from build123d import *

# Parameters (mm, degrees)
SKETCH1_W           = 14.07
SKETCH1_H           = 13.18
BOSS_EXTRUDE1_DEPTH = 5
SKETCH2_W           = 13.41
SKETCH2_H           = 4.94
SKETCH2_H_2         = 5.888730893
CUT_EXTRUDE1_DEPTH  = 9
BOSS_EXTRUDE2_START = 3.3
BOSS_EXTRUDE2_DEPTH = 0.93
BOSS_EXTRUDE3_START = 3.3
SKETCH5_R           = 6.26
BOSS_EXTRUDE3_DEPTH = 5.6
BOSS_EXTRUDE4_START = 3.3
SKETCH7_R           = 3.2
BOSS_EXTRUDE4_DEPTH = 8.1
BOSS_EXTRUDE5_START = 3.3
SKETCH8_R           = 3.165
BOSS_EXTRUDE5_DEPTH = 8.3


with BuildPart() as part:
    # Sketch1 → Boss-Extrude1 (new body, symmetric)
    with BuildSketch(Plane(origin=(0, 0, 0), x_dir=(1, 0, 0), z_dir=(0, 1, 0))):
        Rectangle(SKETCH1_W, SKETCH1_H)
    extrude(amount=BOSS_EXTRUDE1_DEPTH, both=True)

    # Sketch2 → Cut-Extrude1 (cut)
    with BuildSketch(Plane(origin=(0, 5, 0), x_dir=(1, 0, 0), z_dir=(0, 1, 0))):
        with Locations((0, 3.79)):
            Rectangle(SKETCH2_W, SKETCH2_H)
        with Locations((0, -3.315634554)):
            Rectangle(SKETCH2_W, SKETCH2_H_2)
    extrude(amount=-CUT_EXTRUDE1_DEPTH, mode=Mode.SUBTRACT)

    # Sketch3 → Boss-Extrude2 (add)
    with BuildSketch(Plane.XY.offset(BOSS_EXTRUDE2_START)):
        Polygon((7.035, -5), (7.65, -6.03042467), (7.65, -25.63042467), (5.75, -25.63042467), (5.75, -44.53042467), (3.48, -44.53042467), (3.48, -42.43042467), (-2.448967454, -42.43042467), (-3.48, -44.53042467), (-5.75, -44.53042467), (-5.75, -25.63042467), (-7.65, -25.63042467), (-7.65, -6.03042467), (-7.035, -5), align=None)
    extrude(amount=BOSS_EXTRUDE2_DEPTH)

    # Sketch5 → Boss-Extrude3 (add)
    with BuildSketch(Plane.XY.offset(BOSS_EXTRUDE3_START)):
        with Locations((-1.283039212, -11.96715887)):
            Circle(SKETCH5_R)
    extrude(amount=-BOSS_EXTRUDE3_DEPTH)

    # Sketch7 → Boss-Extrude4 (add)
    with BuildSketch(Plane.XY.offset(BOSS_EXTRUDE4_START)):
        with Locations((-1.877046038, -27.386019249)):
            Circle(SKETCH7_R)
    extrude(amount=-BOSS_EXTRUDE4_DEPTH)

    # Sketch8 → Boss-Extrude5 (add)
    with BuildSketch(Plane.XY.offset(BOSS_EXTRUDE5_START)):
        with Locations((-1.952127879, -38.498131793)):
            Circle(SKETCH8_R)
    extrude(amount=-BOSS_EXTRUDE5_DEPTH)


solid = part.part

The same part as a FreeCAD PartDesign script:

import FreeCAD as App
import Part
import Sketcher
from FreeCAD import Vector
Q = App.Units.Quantity

doc = App.newDocument("Part")
params = doc.addObject("Spreadsheet::Sheet", "Params")
for row, (alias, value) in enumerate([
    ("sketch1_width", "14.07 mm"),
    ("sketch1_height", "13.18 mm"),
    ("pad1_length", "10 mm"),
    ("sketch2_width", "13.41 mm"),
    ("sketch2_height", "4.94 mm"),
    ("pocket1_length", "9 mm"),
    ("sketch3_width", "1.9 mm"),
    ("sketch3_height", "19.6 mm"),
    ("sketch3_height2", "18.9 mm"),
    ("sketch3_height3", "2.1 mm"),
    ("sketch3_length", "1.2 mm"),
    ("pad2_length", "0.93 mm"),
    ("sketch4_diameter", "12.52 mm"),
    ("pad3_length", "5.6 mm"),
    ("sketch5_diameter", "6.4 mm"),
    ("pad4_length", "8.1 mm"),
    ("sketch6_diameter", "6.33 mm"),
    ("pad5_length", "8.3 mm"),
], start=1):
    params.set(f"A{row}", alias)
    params.set(f"B{row}", "=" + value)
    params.setAlias(f"B{row}", alias)

body = doc.addObject("PartDesign::Body", "Body")

sketch1 = doc.addObject("Sketcher::SketchObject", "Sketch")
body.addObject(sketch1)
sketch1.AttachmentSupport = (doc.XZ_Plane, [""])
sketch1.MapMode = "FlatFace"
sketch1.addGeometry([
    Part.LineSegment(Vector(-7, -7, 0), Vector(-7, 7, 0)),
    Part.LineSegment(Vector(-7, 7, 0), Vector(7, 7, 0)),
    Part.LineSegment(Vector(7, 7, 0), Vector(7, -7, 0)),
    Part.LineSegment(Vector(7, -7, 0), Vector(-7, -7, 0)),
], False)
sketch1.addConstraint([
    Sketcher.Constraint("Coincident", 0, 2, 1, 1),
    Sketcher.Constraint("Coincident", 1, 2, 2, 1),
    Sketcher.Constraint("Coincident", 2, 2, 3, 1),
    Sketcher.Constraint("Coincident", 3, 2, 0, 1),
    Sketcher.Constraint("Vertical", 0),
    Sketcher.Constraint("Horizontal", 1),
    Sketcher.Constraint("Vertical", 2),
    Sketcher.Constraint("Horizontal", 3),
    Sketcher.Constraint("Symmetric", 0, 2, 2, 2, -1, 1),
    Sketcher.Constraint("DistanceX", 1, 1, 1, 2, Q("14.07 mm")),
    Sketcher.Constraint("DistanceY", 0, 1, 0, 2, Q("13.18 mm")),
])
sketch1.setExpression("Constraints[9]", "Params.sketch1_width")
sketch1.setExpression("Constraints[10]", "Params.sketch1_height")
pad1 = doc.addObject("PartDesign::Pad", "Pad")
body.addObject(pad1)
pad1.Profile = sketch1
pad1.setExpression("Length", "Params.pad1_length")
pad1.Midplane = True

sketch2 = doc.addObject("Sketcher::SketchObject", "Sketch001")
body.addObject(sketch2)
sketch2.AttachmentSupport = (doc.XZ_Plane, [""])
sketch2.MapMode = "FlatFace"
sketch2.AttachmentOffset = App.Placement(Vector(0, 0, -5), App.Rotation())
sketch2.addGeometry([
    Part.LineSegment(Vector(-6.7, -6.3, 0), Vector(-6.7, -1.3, 0)),
    Part.LineSegment(Vector(-6.7, -1.3, 0), Vector(6.7, -1.3, 0)),
    Part.LineSegment(Vector(6.7, -1.3, 0), Vector(6.7, -6.3, 0)),
    Part.LineSegment(Vector(6.7, -6.3, 0), Vector(-6.7, -6.3, 0)),
    Part.LineSegment(Vector(-6.7, 0.4, 0), Vector(-6.7, 6.3, 0)),
    Part.LineSegment(Vector(-6.7, 6.3, 0), Vector(6.7, 6.3, 0)),
    Part.LineSegment(Vector(6.7, 6.3, 0), Vector(6.7, 0.4, 0)),
    Part.LineSegment(Vector(6.7, 0.4, 0), Vector(-6.7, 0.4, 0)),
], False)
sketch2.addConstraint([
    Sketcher.Constraint("Coincident", 0, 2, 1, 1),
    Sketcher.Constraint("Coincident", 1, 2, 2, 1),
    Sketcher.Constraint("Coincident", 2, 2, 3, 1),
    Sketcher.Constraint("Coincident", 3, 2, 0, 1),
    Sketcher.Constraint("Coincident", 4, 2, 5, 1),
    Sketcher.Constraint("Coincident", 5, 2, 6, 1),
    Sketcher.Constraint("Coincident", 6, 2, 7, 1),
    Sketcher.Constraint("Coincident", 7, 2, 4, 1),
    Sketcher.Constraint("Vertical", 0),
    Sketcher.Constraint("Horizontal", 1),
    Sketcher.Constraint("Vertical", 2),
    Sketcher.Constraint("Horizontal", 3),
    Sketcher.Constraint("Vertical", 4),
    Sketcher.Constraint("Horizontal", 5),
    Sketcher.Constraint("Vertical", 6),
    Sketcher.Constraint("Horizontal", 7),
    Sketcher.Constraint("Symmetric", 2, 2, 4, 2, -1, 1),
    Sketcher.Constraint("Vertical", 3, 2, 4, 2),
    Sketcher.Constraint("Vertical", 2, 2, 5, 2),
    Sketcher.Constraint("DistanceX", 1, 1, 1, 2, Q("13.41 mm")),
    Sketcher.Constraint("DistanceY", 0, 1, 0, 2, Q("4.94 mm")),
    Sketcher.Constraint("DistanceY", 0, 2, -1, 1, Q("1.32 mm")),
    Sketcher.Constraint("DistanceY", 4, 1, 4, 2, Q("5.888731 mm")),
])
sketch2.setExpression("Constraints[19]", "Params.sketch2_width")
sketch2.setExpression("Constraints[20]", "Params.sketch2_height")
pocket1 = doc.addObject("PartDesign::Pocket", "Pocket")
body.addObject(pocket1)
pocket1.Profile = sketch2
pocket1.setExpression("Length", "Params.pocket1_length")
pocket1.Reversed = True

sketch3 = doc.addObject("Sketcher::SketchObject", "Sketch002")
body.addObject(sketch3)
sketch3.AttachmentSupport = (doc.XY_Plane, [""])
sketch3.MapMode = "FlatFace"
sketch3.AttachmentOffset = App.Placement(Vector(0, 0, 3.3), App.Rotation())
sketch3.addGeometry([
    Part.LineSegment(Vector(7.7, -6, 0), Vector(7, -5, 0)),
    Part.LineSegment(Vector(7, -5, 0), Vector(-7, -5, 0)),
    Part.LineSegment(Vector(-7, -5, 0), Vector(-7.7, -6, 0)),
    Part.LineSegment(Vector(-7.7, -6, 0), Vector(-7.7, -25.6, 0)),
    Part.LineSegment(Vector(-7.7, -25.6, 0), Vector(-5.8, -25.6, 0)),
    Part.LineSegment(Vector(-5.8, -25.6, 0), Vector(-5.8, -44.5, 0)),
    Part.LineSegment(Vector(-5.8, -44.5, 0), Vector(-3.5, -44.5, 0)),
    Part.LineSegment(Vector(-3.5, -44.5, 0), Vector(-2.4, -42.4, 0)),
    Part.LineSegment(Vector(-2.4, -42.4, 0), Vector(3.5, -42.4, 0)),
    Part.LineSegment(Vector(3.5, -42.4, 0), Vector(3.5, -44.5, 0)),
    Part.LineSegment(Vector(3.5, -44.5, 0), Vector(5.8, -44.5, 0)),
    Part.LineSegment(Vector(5.8, -44.5, 0), Vector(5.8, -25.6, 0)),
    Part.LineSegment(Vector(5.8, -25.6, 0), Vector(7.7, -25.6, 0)),
    Part.LineSegment(Vector(7.7, -25.6, 0), Vector(7.7, -6, 0)),
], False)
sketch3.addConstraint([
    Sketcher.Constraint("Coincident", 0, 2, 1, 1),
    Sketcher.Constraint("Coincident", 1, 2, 2, 1),
    Sketcher.Constraint("Coincident", 2, 2, 3, 1),
    Sketcher.Constraint("Coincident", 3, 2, 4, 1),
    Sketcher.Constraint("Coincident", 4, 2, 5, 1),
    Sketcher.Constraint("Coincident", 5, 2, 6, 1),
    Sketcher.Constraint("Coincident", 6, 2, 7, 1),
    Sketcher.Constraint("Coincident", 7, 2, 8, 1),
    Sketcher.Constraint("Coincident", 8, 2, 9, 1),
    Sketcher.Constraint("Coincident", 9, 2, 10, 1),
    Sketcher.Constraint("Coincident", 10, 2, 11, 1),
    Sketcher.Constraint("Coincident", 11, 2, 12, 1),
    Sketcher.Constraint("Coincident", 12, 2, 13, 1),
    Sketcher.Constraint("Coincident", 13, 2, 0, 1),
    Sketcher.Constraint("Horizontal", 1),
    Sketcher.Constraint("Vertical", 3),
    Sketcher.Constraint("Horizontal", 4),
    Sketcher.Constraint("Vertical", 5),
    Sketcher.Constraint("Horizontal", 6),
    Sketcher.Constraint("Horizontal", 8),
    Sketcher.Constraint("Vertical", 9),
    Sketcher.Constraint("Horizontal", 10),
    Sketcher.Constraint("Vertical", 11),
    Sketcher.Constraint("Horizontal", 12),
    Sketcher.Constraint("Vertical", 13),
    Sketcher.Constraint("Symmetric", 6, 2, 9, 2, -2),
    Sketcher.Constraint("Symmetric", 4, 2, 11, 2, -2),
    Sketcher.Constraint("Symmetric", 2, 2, 13, 2, -2),
    Sketcher.Constraint("Equal", 0, 2),
    Sketcher.Constraint("DistanceX", 4, 1, 4, 2, Q("1.9 mm")),
    Sketcher.Constraint("DistanceY", 3, 2, 3, 1, Q("19.6 mm")),
    Sketcher.Constraint("DistanceY", 5, 2, 5, 1, Q("18.9 mm")),
    Sketcher.Constraint("DistanceY", 9, 2, 9, 1, Q("2.1 mm")),
    Sketcher.Constraint("DistanceY", 0, 2, -1, 1, Q("5 mm")),
    Sketcher.Constraint("Distance", 0, Q("1.2 mm")),
    Sketcher.Constraint("DistanceX", 1, 2, 1, 1, Q("14.07 mm")),
    Sketcher.Constraint("DistanceX", 6, 1, 6, 2, Q("2.27 mm")),
    Sketcher.Constraint("DistanceX", 5, 2, 10, 2, Q("11.5 mm")),
    Sketcher.Constraint("Distance", 7, Q("2.33945 mm")),
])
sketch3.setExpression("Constraints[29]", "Params.sketch3_width")
sketch3.setExpression("Constraints[30]", "Params.sketch3_height")
sketch3.setExpression("Constraints[31]", "Params.sketch3_height2")
sketch3.setExpression("Constraints[32]", "Params.sketch3_height3")
sketch3.setExpression("Constraints[34]", "Params.sketch3_length")
pad2 = doc.addObject("PartDesign::Pad", "Pad001")
body.addObject(pad2)
pad2.Profile = sketch3
pad2.setExpression("Length", "Params.pad2_length")

sketch4 = doc.addObject("Sketcher::SketchObject", "Sketch003")
body.addObject(sketch4)
sketch4.AttachmentSupport = (doc.XY_Plane, [""])
sketch4.MapMode = "FlatFace"
sketch4.AttachmentOffset = App.Placement(Vector(0, 0, 3.3), App.Rotation())
sketch4.addGeometry(Part.Circle(Vector(-1, -12, 0), Vector(0, 0, 1), 6), False)
sketch4.addConstraint([
    Sketcher.Constraint("Diameter", 0, Q("12.52 mm")),
    Sketcher.Constraint("DistanceX", 0, 3, -1, 1, Q("1.283039 mm")),
    Sketcher.Constraint("DistanceY", 0, 3, -1, 1, Q("11.967159 mm")),
])
sketch4.setExpression("Constraints[0]", "Params.sketch4_diameter")
pad3 = doc.addObject("PartDesign::Pad", "Pad002")
body.addObject(pad3)
pad3.Profile = sketch4
pad3.setExpression("Length", "Params.pad3_length")
pad3.Reversed = True

sketch5 = doc.addObject("Sketcher::SketchObject", "Sketch004")
body.addObject(sketch5)
sketch5.AttachmentSupport = (doc.XY_Plane, [""])
sketch5.MapMode = "FlatFace"
sketch5.AttachmentOffset = App.Placement(Vector(0, 0, 3.3), App.Rotation())
sketch5.addGeometry(Part.Circle(Vector(-1.9, -27.4, 0), Vector(0, 0, 1), 3.2), False)
sketch5.addConstraint([
    Sketcher.Constraint("Diameter", 0, Q("6.4 mm")),
    Sketcher.Constraint("DistanceY", 0, 3, -1, 1, Q("27.386019 mm")),
    Sketcher.Constraint("DistanceX", 0, 3, -1, 1, Q("1.877046 mm")),
])
sketch5.setExpression("Constraints[0]", "Params.sketch5_diameter")
pad4 = doc.addObject("PartDesign::Pad", "Pad003")
body.addObject(pad4)
pad4.Profile = sketch5
pad4.setExpression("Length", "Params.pad4_length")
pad4.Reversed = True

sketch6 = doc.addObject("Sketcher::SketchObject", "Sketch005")
body.addObject(sketch6)
sketch6.AttachmentSupport = (doc.XY_Plane, [""])
sketch6.MapMode = "FlatFace"
sketch6.AttachmentOffset = App.Placement(Vector(0, 0, 3.3), App.Rotation())
sketch6.addGeometry(Part.Circle(Vector(-2, -38.5, 0), Vector(0, 0, 1), 3.2), False)
sketch6.addConstraint([
    Sketcher.Constraint("Diameter", 0, Q("6.33 mm")),
    Sketcher.Constraint("DistanceY", 0, 3, -1, 1, Q("38.498132 mm")),
    Sketcher.Constraint("DistanceX", 0, 3, -1, 1, Q("1.952128 mm")),
])
sketch6.setExpression("Constraints[0]", "Params.sketch6_diameter")
pad5 = doc.addObject("PartDesign::Pad", "Pad004")
body.addObject(pad5)
pad5.Profile = sketch6
pad5.setExpression("Length", "Params.pad5_length")
pad5.Reversed = True

doc.recompute()
